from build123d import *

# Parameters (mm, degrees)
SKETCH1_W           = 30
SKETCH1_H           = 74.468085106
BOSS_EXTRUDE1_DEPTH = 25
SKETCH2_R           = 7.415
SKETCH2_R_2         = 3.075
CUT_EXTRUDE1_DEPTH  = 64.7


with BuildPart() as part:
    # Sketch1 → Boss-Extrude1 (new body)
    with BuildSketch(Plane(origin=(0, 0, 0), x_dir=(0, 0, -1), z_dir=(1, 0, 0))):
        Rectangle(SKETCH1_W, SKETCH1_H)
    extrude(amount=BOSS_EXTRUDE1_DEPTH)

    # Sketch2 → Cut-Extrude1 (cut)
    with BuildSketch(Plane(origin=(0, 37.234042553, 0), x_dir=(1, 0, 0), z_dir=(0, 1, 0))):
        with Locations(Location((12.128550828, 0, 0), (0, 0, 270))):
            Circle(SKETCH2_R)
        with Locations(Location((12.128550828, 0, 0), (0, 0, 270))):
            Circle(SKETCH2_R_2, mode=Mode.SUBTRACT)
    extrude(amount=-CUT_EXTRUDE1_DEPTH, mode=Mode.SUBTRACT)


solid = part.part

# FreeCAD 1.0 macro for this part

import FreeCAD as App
import Part
import Sketcher

V = App.Vector
Q = App.Units.Quantity

doc = App.newDocument("Part")
params = doc.addObject("Spreadsheet::Sheet", "Params")
for row, (alias, value) in enumerate([
    ("sketch1_height", "30 mm"),
    ("pad1_length", "25 mm"),
    ("sketch2_diameter", "14.83 mm"),
    ("sketch2_diameter2", "6.15 mm"),
    ("pocket1_length", "64.7 mm"),
], start=1):
    params.set(f"A{row}", alias)
    params.set(f"B{row}", "=" + value)
    params.setAlias(f"B{row}", alias)

body = doc.addObject("PartDesign::Body", "Body")

sketch1 = body.newObject("Sketcher::SketchObject", "Sketch")
sketch1.AttachmentSupport = (doc.getObject("YZ_Plane"), [""])
sketch1.MapMode = "FlatFace"
sketch1.addGeometry([
    Part.LineSegment(V(37, 15, 0), V(-37, 15, 0)),
    Part.LineSegment(V(-37, 15, 0), V(-37, -15, 0)),
    Part.LineSegment(V(-37, -15, 0), V(37, -15, 0)),
    Part.LineSegment(V(37, -15, 0), V(37, 15, 0)),
], False)
sketch1.addConstraint([
    Sketcher.Constraint("Coincident", 0, 2, 1, 1),
    Sketcher.Constraint("Coincident", 1, 2, 2, 1),
    Sketcher.Constraint("Coincident", 2, 2, 3, 1),
    Sketcher.Constraint("Coincident", 3, 2, 0, 1),
    Sketcher.Constraint("Horizontal", 0),
    Sketcher.Constraint("Vertical", 1),
    Sketcher.Constraint("Horizontal", 2),
    Sketcher.Constraint("Vertical", 3),
    Sketcher.Constraint("Symmetric", 0, 2, 2, 2, -1, 1),
    Sketcher.Constraint("DistanceY", 1, 2, 1, 1, Q("30 mm")),
    Sketcher.Constraint("DistanceX", 0, 2, 0, 1, Q("74.468085 mm")),
])
sketch1.setExpression("Constraints[9]", "Params.sketch1_height")
pad1 = body.newObject("PartDesign::Pad", "Pad")
pad1.Profile = sketch1
pad1.setExpression("Length", "Params.pad1_length")

sketch2 = body.newObject("Sketcher::SketchObject", "Sketch001")
sketch2.AttachmentSupport = (doc.getObject("XZ_Plane"), [""])
sketch2.MapMode = "FlatFace"
sketch2.AttachmentOffset = App.Placement(V(0, 0, -37.234043), App.Rotation())
sketch2.addGeometry([
    Part.Circle(V(12.1, 0, 0), V(0, 0, 1), 7.4),
    Part.Circle(V(12.1, 0, 0), V(0, 0, 1), 3.1),
], False)
sketch2.addConstraint([
    Sketcher.Constraint("Coincident", 1, 3, 0, 3),
    Sketcher.Constraint("PointOnObject", 0, 3, -1),
    Sketcher.Constraint("Diameter", 0, Q("14.83 mm")),
    Sketcher.Constraint("Diameter", 1, Q("6.15 mm")),
    Sketcher.Constraint("DistanceX", -1, 1, 0, 3, Q("12.128551 mm")),
])
sketch2.setExpression("Constraints[2]", "Params.sketch2_diameter")
sketch2.setExpression("Constraints[3]", "Params.sketch2_diameter2")
pocket1 = body.newObject("PartDesign::Pocket", "Pocket")
pocket1.Profile = sketch2
pocket1.setExpression("Length", "Params.pocket1_length")
pocket1.Reversed = True

doc.recompute()
